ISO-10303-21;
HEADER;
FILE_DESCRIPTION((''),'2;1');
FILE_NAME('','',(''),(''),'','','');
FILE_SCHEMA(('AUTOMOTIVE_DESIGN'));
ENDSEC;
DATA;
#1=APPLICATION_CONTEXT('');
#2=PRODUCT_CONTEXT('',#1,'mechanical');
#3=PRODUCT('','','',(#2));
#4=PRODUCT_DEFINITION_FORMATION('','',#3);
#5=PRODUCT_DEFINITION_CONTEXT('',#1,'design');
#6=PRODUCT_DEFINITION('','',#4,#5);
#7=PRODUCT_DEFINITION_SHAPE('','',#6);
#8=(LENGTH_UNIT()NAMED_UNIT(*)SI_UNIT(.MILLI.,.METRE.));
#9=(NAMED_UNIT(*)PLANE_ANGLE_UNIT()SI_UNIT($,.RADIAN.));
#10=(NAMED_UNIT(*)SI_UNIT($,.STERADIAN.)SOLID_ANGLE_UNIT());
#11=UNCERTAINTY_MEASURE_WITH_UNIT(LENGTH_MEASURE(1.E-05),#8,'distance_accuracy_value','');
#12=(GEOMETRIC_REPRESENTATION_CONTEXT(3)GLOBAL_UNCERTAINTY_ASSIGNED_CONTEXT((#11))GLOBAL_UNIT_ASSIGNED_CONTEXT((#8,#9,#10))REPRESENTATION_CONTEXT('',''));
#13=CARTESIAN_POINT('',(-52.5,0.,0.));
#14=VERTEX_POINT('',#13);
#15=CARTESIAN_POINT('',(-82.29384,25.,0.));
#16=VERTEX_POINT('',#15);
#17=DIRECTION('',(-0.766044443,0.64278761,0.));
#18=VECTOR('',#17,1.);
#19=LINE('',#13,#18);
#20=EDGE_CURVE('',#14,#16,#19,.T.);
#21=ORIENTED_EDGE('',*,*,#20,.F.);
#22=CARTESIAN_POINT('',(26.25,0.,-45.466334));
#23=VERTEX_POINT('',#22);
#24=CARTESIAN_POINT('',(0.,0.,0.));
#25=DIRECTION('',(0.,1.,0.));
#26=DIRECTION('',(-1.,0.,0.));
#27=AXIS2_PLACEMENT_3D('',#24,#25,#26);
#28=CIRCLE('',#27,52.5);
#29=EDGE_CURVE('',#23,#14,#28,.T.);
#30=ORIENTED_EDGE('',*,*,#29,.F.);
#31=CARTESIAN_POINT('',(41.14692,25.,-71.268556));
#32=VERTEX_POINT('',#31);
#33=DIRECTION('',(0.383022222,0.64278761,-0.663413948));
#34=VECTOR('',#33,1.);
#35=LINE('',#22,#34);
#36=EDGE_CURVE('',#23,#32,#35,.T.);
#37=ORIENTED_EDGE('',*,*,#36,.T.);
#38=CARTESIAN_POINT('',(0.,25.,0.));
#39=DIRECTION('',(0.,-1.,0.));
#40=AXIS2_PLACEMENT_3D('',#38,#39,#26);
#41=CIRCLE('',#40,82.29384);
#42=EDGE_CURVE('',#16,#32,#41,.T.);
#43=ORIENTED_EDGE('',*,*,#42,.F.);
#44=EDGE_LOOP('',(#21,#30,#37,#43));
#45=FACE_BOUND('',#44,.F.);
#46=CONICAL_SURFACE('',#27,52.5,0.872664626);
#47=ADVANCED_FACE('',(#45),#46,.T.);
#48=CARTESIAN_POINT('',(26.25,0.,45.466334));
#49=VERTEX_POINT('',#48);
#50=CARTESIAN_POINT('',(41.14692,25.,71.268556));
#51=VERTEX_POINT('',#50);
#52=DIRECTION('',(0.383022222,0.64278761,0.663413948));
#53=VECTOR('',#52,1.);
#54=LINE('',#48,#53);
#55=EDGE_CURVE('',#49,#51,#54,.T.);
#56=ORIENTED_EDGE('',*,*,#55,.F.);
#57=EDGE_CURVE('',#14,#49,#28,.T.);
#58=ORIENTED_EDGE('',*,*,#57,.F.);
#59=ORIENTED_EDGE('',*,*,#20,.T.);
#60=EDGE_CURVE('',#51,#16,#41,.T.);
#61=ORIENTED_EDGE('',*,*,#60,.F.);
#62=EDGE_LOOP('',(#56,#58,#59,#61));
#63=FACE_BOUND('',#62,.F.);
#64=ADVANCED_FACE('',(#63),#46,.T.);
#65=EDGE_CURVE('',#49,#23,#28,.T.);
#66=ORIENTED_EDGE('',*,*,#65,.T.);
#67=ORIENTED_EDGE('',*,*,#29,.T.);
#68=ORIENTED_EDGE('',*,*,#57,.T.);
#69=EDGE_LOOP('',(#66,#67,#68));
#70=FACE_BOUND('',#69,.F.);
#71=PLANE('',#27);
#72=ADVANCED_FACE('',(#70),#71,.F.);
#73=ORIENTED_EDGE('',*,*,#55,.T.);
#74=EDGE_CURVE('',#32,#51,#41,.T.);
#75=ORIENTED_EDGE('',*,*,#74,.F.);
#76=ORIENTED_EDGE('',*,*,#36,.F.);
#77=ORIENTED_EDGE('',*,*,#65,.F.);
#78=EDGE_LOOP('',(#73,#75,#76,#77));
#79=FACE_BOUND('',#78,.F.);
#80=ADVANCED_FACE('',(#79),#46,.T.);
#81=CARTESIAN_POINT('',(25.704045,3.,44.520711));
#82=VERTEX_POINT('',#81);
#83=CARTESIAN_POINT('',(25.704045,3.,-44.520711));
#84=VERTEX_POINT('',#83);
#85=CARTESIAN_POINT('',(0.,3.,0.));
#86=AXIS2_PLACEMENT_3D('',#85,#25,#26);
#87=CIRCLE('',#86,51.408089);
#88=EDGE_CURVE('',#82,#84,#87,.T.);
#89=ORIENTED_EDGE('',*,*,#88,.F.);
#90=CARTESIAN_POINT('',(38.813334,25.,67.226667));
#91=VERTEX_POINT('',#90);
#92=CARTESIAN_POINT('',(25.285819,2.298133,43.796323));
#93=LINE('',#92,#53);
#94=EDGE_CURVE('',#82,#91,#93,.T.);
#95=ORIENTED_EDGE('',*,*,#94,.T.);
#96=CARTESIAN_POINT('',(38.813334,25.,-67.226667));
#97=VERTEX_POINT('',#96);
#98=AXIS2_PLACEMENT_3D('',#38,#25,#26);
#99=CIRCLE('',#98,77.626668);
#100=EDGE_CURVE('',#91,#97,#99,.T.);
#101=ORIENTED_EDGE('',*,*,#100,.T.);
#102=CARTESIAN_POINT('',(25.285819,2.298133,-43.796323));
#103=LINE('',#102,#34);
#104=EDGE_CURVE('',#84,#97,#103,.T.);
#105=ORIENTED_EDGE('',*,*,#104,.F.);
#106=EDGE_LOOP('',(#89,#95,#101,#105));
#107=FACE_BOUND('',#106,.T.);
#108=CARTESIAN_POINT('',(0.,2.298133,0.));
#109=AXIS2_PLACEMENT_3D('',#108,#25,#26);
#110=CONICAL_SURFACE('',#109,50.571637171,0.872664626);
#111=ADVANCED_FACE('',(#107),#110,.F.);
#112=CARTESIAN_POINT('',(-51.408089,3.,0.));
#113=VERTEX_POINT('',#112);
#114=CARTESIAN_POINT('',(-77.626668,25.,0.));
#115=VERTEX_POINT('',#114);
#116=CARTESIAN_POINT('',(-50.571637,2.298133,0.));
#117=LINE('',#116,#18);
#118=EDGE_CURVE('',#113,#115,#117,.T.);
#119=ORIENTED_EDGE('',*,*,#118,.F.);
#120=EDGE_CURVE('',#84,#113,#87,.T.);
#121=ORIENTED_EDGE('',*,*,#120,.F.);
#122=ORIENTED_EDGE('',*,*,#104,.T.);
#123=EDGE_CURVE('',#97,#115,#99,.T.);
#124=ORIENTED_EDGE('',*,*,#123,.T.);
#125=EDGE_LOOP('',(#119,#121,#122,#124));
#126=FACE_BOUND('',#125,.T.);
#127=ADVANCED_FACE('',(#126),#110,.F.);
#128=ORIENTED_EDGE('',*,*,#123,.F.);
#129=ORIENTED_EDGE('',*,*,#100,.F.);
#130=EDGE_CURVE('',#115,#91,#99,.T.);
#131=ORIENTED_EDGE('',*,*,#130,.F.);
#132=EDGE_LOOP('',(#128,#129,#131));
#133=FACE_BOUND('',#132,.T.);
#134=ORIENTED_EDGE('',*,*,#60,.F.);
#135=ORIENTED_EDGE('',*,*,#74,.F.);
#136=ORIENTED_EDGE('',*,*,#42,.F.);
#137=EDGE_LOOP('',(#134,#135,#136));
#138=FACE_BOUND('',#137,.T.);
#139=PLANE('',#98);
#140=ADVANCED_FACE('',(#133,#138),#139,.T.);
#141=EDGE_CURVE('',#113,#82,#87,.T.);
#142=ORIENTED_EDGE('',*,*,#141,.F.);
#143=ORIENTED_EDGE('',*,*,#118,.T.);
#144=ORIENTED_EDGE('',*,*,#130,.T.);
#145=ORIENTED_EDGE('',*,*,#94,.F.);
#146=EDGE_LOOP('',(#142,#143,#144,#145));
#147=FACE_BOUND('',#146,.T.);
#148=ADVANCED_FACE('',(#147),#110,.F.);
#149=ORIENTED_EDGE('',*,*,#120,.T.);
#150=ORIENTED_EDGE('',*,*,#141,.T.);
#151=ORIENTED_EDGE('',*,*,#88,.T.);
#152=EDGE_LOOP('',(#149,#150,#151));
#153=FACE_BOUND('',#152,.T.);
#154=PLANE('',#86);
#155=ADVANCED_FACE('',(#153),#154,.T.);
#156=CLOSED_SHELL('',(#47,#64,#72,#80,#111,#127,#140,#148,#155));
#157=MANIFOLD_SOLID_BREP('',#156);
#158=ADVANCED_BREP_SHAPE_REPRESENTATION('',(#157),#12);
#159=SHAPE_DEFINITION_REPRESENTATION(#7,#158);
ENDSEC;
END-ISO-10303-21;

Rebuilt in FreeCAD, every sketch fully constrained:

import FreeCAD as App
import Part
import Sketcher

V = App.Vector


def faces_at(feature, points):
    """Names of the faces that lie closest to the given points."""
    faces = feature.Shape.Faces
    near = lambda p: min(range(len(faces)), key=lambda i: faces[i].distToShape(Part.Vertex(*p))[0])
    return sorted({f"Face{near(p) + 1}" for p in points})

doc = App.newDocument("Part")
params = doc.addObject("Spreadsheet::Sheet", "Params")
for row, (alias, value) in enumerate([
    ("sketch1_diameter", "105 mm"),
    ("pad1_length", "25 mm"),
    ("pad1_taper", "50 deg"),
    ("thickness_wall", "3 mm"),
], start=1):
    params.set(f"A{row}", alias)
    params.set(f"B{row}", "=" + value)
    params.setAlias(f"B{row}", alias)

body = doc.addObject("PartDesign::Body", "Body")

# Sketch on XZ plane
sketch1 = doc.addObject("Sketcher::SketchObject", "Sketch")
body.addObject(sketch1)
sketch1.AttachmentSupport = (doc.XZ_Plane, [""])
sketch1.MapMode = "FlatFace"
sketch1.addGeometry(Part.Circle(V(0, 0, 0), V(0, 0, 1), 52), False)
sketch1.addConstraint([
    Sketcher.Constraint("Coincident", 0, 3, -1, 1),
    Sketcher.Constraint("Diameter", 0, 105.0),
])
sketch1.setExpression("Constraints[1]", "Params.sketch1_diameter")
pad1 = doc.addObject("PartDesign::Pad", "Pad")
body.addObject(pad1)
pad1.Profile = sketch1
pad1.setExpression("Length", "Params.pad1_length")
pad1.Reversed = True
pad1.setExpression("TaperAngle", "Params.pad1_taper")
doc.recompute()

thickness = doc.addObject("PartDesign::Thickness", "Thickness")
body.addObject(thickness)
thickness.Base = (pad1, faces_at(pad1, [(12.218, 25, 3.769)]))
thickness.setExpression("Value", "Params.thickness_wall")
thickness.Reversed = True
thickness.Join = "Intersection"

doc.recompute()
